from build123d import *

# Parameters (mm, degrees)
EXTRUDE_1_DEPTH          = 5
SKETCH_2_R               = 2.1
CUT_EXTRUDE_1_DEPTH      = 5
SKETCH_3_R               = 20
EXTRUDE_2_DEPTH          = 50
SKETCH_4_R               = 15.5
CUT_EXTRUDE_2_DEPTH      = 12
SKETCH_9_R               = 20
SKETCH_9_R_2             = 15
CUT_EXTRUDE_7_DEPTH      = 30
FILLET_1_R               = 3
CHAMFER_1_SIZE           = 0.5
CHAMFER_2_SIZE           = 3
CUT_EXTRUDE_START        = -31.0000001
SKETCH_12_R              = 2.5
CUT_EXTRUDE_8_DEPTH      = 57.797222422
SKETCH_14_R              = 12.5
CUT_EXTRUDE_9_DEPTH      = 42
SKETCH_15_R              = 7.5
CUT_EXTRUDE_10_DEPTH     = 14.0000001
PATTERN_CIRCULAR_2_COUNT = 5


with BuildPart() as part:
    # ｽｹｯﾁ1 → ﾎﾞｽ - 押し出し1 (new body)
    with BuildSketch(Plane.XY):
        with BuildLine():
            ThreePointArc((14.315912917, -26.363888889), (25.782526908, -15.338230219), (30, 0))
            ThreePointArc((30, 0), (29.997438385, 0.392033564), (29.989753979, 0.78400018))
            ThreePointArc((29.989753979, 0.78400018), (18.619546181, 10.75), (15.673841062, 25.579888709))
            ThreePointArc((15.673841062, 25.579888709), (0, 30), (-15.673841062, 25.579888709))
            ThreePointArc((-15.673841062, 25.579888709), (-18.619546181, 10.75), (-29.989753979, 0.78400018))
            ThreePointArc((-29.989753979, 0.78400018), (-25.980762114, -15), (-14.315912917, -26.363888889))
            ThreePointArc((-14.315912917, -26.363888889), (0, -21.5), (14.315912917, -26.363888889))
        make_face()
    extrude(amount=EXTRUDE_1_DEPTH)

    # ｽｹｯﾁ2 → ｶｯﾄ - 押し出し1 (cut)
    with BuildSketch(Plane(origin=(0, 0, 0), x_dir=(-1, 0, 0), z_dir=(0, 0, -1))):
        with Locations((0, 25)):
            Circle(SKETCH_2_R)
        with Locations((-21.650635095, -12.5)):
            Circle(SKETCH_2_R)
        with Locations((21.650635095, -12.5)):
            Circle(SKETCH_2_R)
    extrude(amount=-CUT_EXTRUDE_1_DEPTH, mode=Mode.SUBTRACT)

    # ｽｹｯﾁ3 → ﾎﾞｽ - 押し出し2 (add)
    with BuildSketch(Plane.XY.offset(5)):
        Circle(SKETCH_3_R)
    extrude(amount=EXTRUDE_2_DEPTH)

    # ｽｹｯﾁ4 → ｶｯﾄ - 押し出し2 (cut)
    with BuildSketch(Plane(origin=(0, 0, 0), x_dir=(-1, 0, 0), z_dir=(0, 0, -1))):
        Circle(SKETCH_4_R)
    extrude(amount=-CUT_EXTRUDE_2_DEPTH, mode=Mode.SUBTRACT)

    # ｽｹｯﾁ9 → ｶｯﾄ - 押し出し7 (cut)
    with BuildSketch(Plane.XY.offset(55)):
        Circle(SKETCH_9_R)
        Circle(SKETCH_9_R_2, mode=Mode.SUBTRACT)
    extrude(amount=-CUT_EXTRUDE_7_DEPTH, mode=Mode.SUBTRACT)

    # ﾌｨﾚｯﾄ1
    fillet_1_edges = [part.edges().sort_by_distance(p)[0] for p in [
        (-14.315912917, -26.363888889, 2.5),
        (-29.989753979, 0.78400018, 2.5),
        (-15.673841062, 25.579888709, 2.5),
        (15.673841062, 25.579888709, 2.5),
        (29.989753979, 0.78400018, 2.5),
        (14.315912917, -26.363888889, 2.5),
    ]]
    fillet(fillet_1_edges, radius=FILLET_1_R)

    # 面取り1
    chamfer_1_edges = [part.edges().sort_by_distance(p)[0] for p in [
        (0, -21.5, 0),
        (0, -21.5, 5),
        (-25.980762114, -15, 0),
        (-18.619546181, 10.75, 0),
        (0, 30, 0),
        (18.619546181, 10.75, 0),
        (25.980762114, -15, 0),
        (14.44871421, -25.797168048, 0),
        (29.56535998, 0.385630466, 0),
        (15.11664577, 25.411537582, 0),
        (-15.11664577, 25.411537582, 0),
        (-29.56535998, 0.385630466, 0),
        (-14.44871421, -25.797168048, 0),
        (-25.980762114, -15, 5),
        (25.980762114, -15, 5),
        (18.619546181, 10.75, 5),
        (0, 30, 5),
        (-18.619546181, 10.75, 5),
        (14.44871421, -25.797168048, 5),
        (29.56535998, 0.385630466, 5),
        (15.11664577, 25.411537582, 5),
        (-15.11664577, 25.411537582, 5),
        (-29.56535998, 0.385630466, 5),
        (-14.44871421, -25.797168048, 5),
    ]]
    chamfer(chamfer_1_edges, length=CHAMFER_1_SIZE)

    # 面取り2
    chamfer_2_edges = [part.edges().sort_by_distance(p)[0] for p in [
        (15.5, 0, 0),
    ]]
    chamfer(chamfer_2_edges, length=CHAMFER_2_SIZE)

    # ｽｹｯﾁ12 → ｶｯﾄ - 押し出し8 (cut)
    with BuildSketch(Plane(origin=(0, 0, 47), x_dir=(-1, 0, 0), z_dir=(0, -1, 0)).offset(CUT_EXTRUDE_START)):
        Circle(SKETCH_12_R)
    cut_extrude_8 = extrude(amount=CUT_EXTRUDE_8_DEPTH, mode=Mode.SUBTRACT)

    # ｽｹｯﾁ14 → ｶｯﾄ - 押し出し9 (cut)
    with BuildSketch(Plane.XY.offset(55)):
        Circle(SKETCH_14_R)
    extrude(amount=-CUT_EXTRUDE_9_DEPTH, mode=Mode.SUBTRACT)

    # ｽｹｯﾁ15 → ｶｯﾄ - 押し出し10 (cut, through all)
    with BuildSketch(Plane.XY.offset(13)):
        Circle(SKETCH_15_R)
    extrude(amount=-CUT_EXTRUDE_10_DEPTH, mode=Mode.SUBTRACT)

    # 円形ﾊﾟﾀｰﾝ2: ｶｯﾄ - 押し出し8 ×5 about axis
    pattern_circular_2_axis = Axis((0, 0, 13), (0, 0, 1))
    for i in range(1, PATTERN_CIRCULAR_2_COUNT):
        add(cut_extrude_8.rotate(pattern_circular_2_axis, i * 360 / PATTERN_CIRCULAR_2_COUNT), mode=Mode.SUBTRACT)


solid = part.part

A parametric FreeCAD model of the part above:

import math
import FreeCAD as App
import Part
import Sketcher
Q = App.Units.Quantity


def edges_at(feature, points):
    """Names of the edges that pass closest to the given points."""
    edges = feature.Shape.Edges
    near = lambda p: min(range(len(edges)), key=lambda i: edges[i].distToShape(Part.Vertex(*p))[0])
    return sorted({f"Edge{near(p) + 1}" for p in points})

doc = App.newDocument("Part")
params = doc.addObject("Spreadsheet::Sheet", "Params")
for row, (alias, value) in enumerate([
    ("sketch1_radius", "30 mm"),
    ("sketch1_radius2", "23.5 mm"),
    ("pad1_length", "5 mm"),
    ("sketch2_diameter", "4.2 mm"),
    ("pocket1_length", "5 mm"),
    ("sketch3_diameter", "40 mm"),
    ("pad2_length", "50 mm"),
    ("sketch4_diameter", "31 mm"),
    ("pocket2_length", "12 mm"),
    ("sketch5_diameter", "40 mm"),
    ("sketch5_diameter2", "30 mm"),
    ("pocket3_length", "30 mm"),
    ("fillet_radius", "3 mm"),
    ("chamfer_size", "0.5 mm"),
    ("chamfer2_size", "3 mm"),
    ("sketch6_diameter", "5 mm"),
    ("pocket4_length", "57.797222 mm"),
    ("sketch7_diameter", "25 mm"),
    ("pocket5_length", "42 mm"),
    ("sketch8_diameter", "15 mm"),
], start=1):
    params.set(f"A{row}", alias)
    params.set(f"B{row}", "=" + value)
    params.setAlias(f"B{row}", alias)

body = doc.addObject("PartDesign::Body", "Body")

sketch1 = body.newObject("Sketcher::SketchObject", "Sketch")
sketch1.AttachmentSupport = (doc.getObject("XY_Plane"), [""])
sketch1.MapMode = "FlatFace"
sketch1.addGeometry([
    Part.ArcOfCircle(Part.Circle(App.Vector(0, 0, 0), App.Vector(0, 0, 1), 30), math.radians(-61.497501), math.radians(0)),
    Part.ArcOfCircle(Part.Circle(App.Vector(-0.000005, 0, 0), App.Vector(0, 0, 1), 30.000005), math.radians(0), math.radians(1.4975)),
    Part.ArcOfCircle(Part.Circle(App.Vector(38.971143, 22.5, 0), App.Vector(0, 0, 1), 23.5), math.radians(172.469202), math.radians(247.530798)),
    Part.ArcOfCircle(Part.Circle(App.Vector(0, 0, 0), App.Vector(0, 0, 1), 30), math.radians(58.502499), math.radians(121.497501)),
    Part.ArcOfCircle(Part.Circle(App.Vector(-38.971143, 22.5, 0), App.Vector(0, 0, 1), 23.5), math.radians(-67.530798), math.radians(7.530798)),
    Part.ArcOfCircle(Part.Circle(App.Vector(0, 0, 0), App.Vector(0, 0, 1), 30), math.radians(178.502499), math.radians(241.497501)),
    Part.ArcOfCircle(Part.Circle(App.Vector(0, -45, 0), App.Vector(0, 0, 1), 23.5), math.radians(52.469202), math.radians(127.530798)),
], False)
sketch1.addConstraint([
    Sketcher.Constraint("Tangent", 0, 2, 1, 1),
    Sketcher.Constraint("Coincident", 1, 2, 2, 2),
    Sketcher.Constraint("Coincident", 2, 1, 3, 1),
    Sketcher.Constraint("Coincident", 3, 2, 4, 2),
    Sketcher.Constraint("Coincident", 4, 1, 5, 1),
    Sketcher.Constraint("Coincident", 5, 2, 6, 2),
    Sketcher.Constraint("Coincident", 6, 1, 0, 1),
    Sketcher.Constraint("Coincident", 0, 3, -1, 1),
    Sketcher.Constraint("Coincident", 3, 3, -1, 1),
    Sketcher.Constraint("Coincident", 5, 3, -1, 1),
    Sketcher.Constraint("Equal", 0, 3),
    Sketcher.Constraint("Equal", 2, 4),
    Sketcher.Constraint("Equal", 3, 5),
    Sketcher.Constraint("Equal", 4, 6),
    Sketcher.Constraint("Symmetric", 2, 3, 4, 3, -2),
    Sketcher.Constraint("PointOnObject", 6, 3, -2),
    Sketcher.Constraint("PointOnObject", 0, 2, -1),
    Sketcher.Constraint("Radius", 0, Q("30 mm")),
    Sketcher.Constraint("Radius", 2, Q("23.5 mm")),
    Sketcher.Constraint("DistanceY", 6, 3, -1, 1, Q("45 mm")),
    Sketcher.Constraint("DistanceY", -1, 1, 2, 3, Q("22.5 mm")),
    Sketcher.Constraint("DistanceY", -1, 1, 1, 2, Q("0.784 mm")),
    Sketcher.Constraint("Radius", 1, Q("30.000005 mm")),
])
sketch1.setExpression("Constraints[17]", "Params.sketch1_radius")
sketch1.setExpression("Constraints[18]", "Params.sketch1_radius2")
pad1 = body.newObject("PartDesign::Pad", "Pad")
pad1.Profile = sketch1
pad1.setExpression("Length", "Params.pad1_length")

sketch2 = body.newObject("Sketcher::SketchObject", "Sketch001")
sketch2.AttachmentSupport = (doc.getObject("XY_Plane"), [""])
sketch2.MapMode = "FlatFace"
sketch2.addGeometry([
    Part.Circle(App.Vector(0, 25, 0), App.Vector(0, 0, 1), 2.1),
    Part.Circle(App.Vector(21.650635, -12.5, 0), App.Vector(0, 0, 1), 2.1),
    Part.Circle(App.Vector(-21.650635, -12.5, 0), App.Vector(0, 0, 1), 2.1),
], False)
sketch2.addConstraint([
    Sketcher.Constraint("Equal", 0, 1),
    Sketcher.Constraint("Equal", 1, 2),
    Sketcher.Constraint("Symmetric", 1, 3, 2, 3, -2),
    Sketcher.Constraint("PointOnObject", 0, 3, -2),
    Sketcher.Constraint("Diameter", 0, Q("4.2 mm")),
    Sketcher.Constraint("DistanceY", -1, 1, 0, 3, Q("25 mm")),
    Sketcher.Constraint("DistanceY", 1, 3, -1, 1, Q("12.5 mm")),
    Sketcher.Constraint("DistanceX", 2, 3, 1, 3, Q("43.30127 mm")),
])
sketch2.setExpression("Constraints[4]", "Params.sketch2_diameter")
pocket1 = body.newObject("PartDesign::Pocket", "Pocket")
pocket1.Profile = sketch2
pocket1.setExpression("Length", "Params.pocket1_length")
pocket1.Reversed = True

sketch3 = body.newObject("Sketcher::SketchObject", "Sketch002")
sketch3.AttachmentSupport = (doc.getObject("XY_Plane"), [""])
sketch3.MapMode = "FlatFace"
sketch3.AttachmentOffset = App.Placement(App.Vector(0, 0, 5), App.Rotation())
sketch3.addGeometry(Part.Circle(App.Vector(0, 0, 0), App.Vector(0, 0, 1), 20), False)
sketch3.addConstraint([
    Sketcher.Constraint("Coincident", 0, 3, -1, 1),
    Sketcher.Constraint("Diameter", 0, Q("40 mm")),
])
sketch3.setExpression("Constraints[1]", "Params.sketch3_diameter")
pad2 = body.newObject("PartDesign::Pad", "Pad001")
pad2.Profile = sketch3
pad2.setExpression("Length", "Params.pad2_length")

sketch4 = body.newObject("Sketcher::SketchObject", "Sketch003")
sketch4.AttachmentSupport = (doc.getObject("XY_Plane"), [""])
sketch4.MapMode = "FlatFace"
sketch4.addGeometry(Part.Circle(App.Vector(0, 0, 0), App.Vector(0, 0, 1), 15.5), False)
sketch4.addConstraint([
    Sketcher.Constraint("Coincident", 0, 3, -1, 1),
    Sketcher.Constraint("Diameter", 0, Q("31 mm")),
])
sketch4.setExpression("Constraints[1]", "Params.sketch4_diameter")
pocket2 = body.newObject("PartDesign::Pocket", "Pocket001")
pocket2.Profile = sketch4
pocket2.setExpression("Length", "Params.pocket2_length")
pocket2.Reversed = True

sketch5 = body.newObject("Sketcher::SketchObject", "Sketch004")
sketch5.AttachmentSupport = (doc.getObject("XY_Plane"), [""])
sketch5.MapMode = "FlatFace"
sketch5.AttachmentOffset = App.Placement(App.Vector(0, 0, 55), App.Rotation())
sketch5.addGeometry([
    Part.Circle(App.Vector(0, 0, 0), App.Vector(0, 0, 1), 20),
    Part.Circle(App.Vector(0, 0, 0), App.Vector(0, 0, 1), 15),
], False)
sketch5.addConstraint([
    Sketcher.Constraint("Coincident", 0, 3, -1, 1),
    Sketcher.Constraint("Coincident", 1, 3, -1, 1),
    Sketcher.Constraint("Diameter", 0, Q("40 mm")),
    Sketcher.Constraint("Diameter", 1, Q("30 mm")),
])
sketch5.setExpression("Constraints[2]", "Params.sketch5_diameter")
sketch5.setExpression("Constraints[3]", "Params.sketch5_diameter2")
pocket3 = body.newObject("PartDesign::Pocket", "Pocket002")
pocket3.Profile = sketch5
pocket3.setExpression("Length", "Params.pocket3_length")
doc.recompute()

fillet = body.newObject("PartDesign::Fillet", "Fillet")
fillet.Base = (pocket3, edges_at(pocket3, [
    (-14.316, -26.364, 2.5),
    (-29.99, 0.784, 2.5),
    (-15.674, 25.58, 2.5),
    (15.674, 25.58, 2.5),
    (29.99, 0.784, 2.5),
    (14.316, -26.364, 2.5),
]))
fillet.setExpression("Radius", "Params.fillet_radius")
doc.recompute()

chamfer = body.newObject("PartDesign::Chamfer", "Chamfer")
chamfer.Base = (fillet, edges_at(fillet, [
    (0, -21.5, 0),
    (0, -21.5, 5),
    (-25.981, -15, 0),
    (-18.62, 10.75, 0),
    (0, 30, 0),
    (18.62, 10.75, 0),
    (25.981, -15, 0),
    (14.449, -25.797, 0),
    (29.565, 0.386, 0),
    (15.117, 25.412, 0),
    (-15.117, 25.412, 0),
    (-29.565, 0.386, 0),
    (-14.449, -25.797, 0),
    (-25.981, -15, 5),
    (25.981, -15, 5),
    (18.62, 10.75, 5),
    (0, 30, 5),
    (-18.62, 10.75, 5),
    (14.449, -25.797, 5),
    (29.565, 0.386, 5),
    (15.117, 25.412, 5),
    (-15.117, 25.412, 5),
    (-29.565, 0.386, 5),
    (-14.449, -25.797, 5),
]))
chamfer.setExpression("Size", "Params.chamfer_size")
doc.recompute()

chamfer2 = body.newObject("PartDesign::Chamfer", "Chamfer001")
chamfer2.Base = (chamfer, edges_at(chamfer, [(15.5, 0, 0)]))
chamfer2.setExpression("Size", "Params.chamfer2_size")

sketch6 = body.newObject("Sketcher::SketchObject", "Sketch005")
sketch6.AttachmentSupport = (doc.getObject("XZ_Plane"), [""])
sketch6.MapMode = "FlatFace"
sketch6.AttachmentOffset = App.Placement(App.Vector(0, 0, -31), App.Rotation())
sketch6.addGeometry(Part.Circle(App.Vector(0, 47, 0), App.Vector(0, 0, 1), 2.5), False)
sketch6.addConstraint([
    Sketcher.Constraint("PointOnObject", 0, 3, -2),
    Sketcher.Constraint("Diameter", 0, Q("5 mm")),
    Sketcher.Constraint("DistanceY", -1, 1, 0, 3, Q("47 mm")),
])
sketch6.setExpression("Constraints[1]", "Params.sketch6_diameter")
pocket4 = body.newObject("PartDesign::Pocket", "Pocket003")
pocket4.Profile = sketch6
pocket4.setExpression("Length", "Params.pocket4_length")
pocket4.Reversed = True

sketch7 = body.newObject("Sketcher::SketchObject", "Sketch006")
sketch7.AttachmentSupport = (doc.getObject("XY_Plane"), [""])
sketch7.MapMode = "FlatFace"
sketch7.AttachmentOffset = App.Placement(App.Vector(0, 0, 55), App.Rotation())
sketch7.addGeometry(Part.Circle(App.Vector(0, 0, 0), App.Vector(0, 0, 1), 12.5), False)
sketch7.addConstraint([
    Sketcher.Constraint("Coincident", 0, 3, -1, 1),
    Sketcher.Constraint("Diameter", 0, Q("25 mm")),
])
sketch7.setExpression("Constraints[1]", "Params.sketch7_diameter")
pocket5 = body.newObject("PartDesign::Pocket", "Pocket004")
pocket5.Profile = sketch7
pocket5.setExpression("Length", "Params.pocket5_length")

sketch8 = body.newObject("Sketcher::SketchObject", "Sketch007")
sketch8.AttachmentSupport = (doc.getObject("XY_Plane"), [""])
sketch8.MapMode = "FlatFace"
sketch8.AttachmentOffset = App.Placement(App.Vector(0, 0, 13), App.Rotation())
sketch8.addGeometry(Part.Circle(App.Vector(0, 0, 0), App.Vector(0, 0, 1), 7.5), False)
sketch8.addConstraint([
    Sketcher.Constraint("Coincident", 0, 3, -1, 1),
    Sketcher.Constraint("Diameter", 0, Q("15 mm")),
])
sketch8.setExpression("Constraints[1]", "Params.sketch8_diameter")
pocket6 = body.newObject("PartDesign::Pocket", "Pocket005")
pocket6.Profile = sketch8
pocket6.Type = "ThroughAll"
doc.recompute()

polarpattern = body.newObject("PartDesign::PolarPattern", "PolarPattern")
polarpattern.Originals = [pocket4]
polarpattern.Axis = (doc.getObject("Z_Axis"), [""])
polarpattern.Angle = 360
polarpattern.Occurrences = 5
body.Tip = polarpattern

doc.recompute()
